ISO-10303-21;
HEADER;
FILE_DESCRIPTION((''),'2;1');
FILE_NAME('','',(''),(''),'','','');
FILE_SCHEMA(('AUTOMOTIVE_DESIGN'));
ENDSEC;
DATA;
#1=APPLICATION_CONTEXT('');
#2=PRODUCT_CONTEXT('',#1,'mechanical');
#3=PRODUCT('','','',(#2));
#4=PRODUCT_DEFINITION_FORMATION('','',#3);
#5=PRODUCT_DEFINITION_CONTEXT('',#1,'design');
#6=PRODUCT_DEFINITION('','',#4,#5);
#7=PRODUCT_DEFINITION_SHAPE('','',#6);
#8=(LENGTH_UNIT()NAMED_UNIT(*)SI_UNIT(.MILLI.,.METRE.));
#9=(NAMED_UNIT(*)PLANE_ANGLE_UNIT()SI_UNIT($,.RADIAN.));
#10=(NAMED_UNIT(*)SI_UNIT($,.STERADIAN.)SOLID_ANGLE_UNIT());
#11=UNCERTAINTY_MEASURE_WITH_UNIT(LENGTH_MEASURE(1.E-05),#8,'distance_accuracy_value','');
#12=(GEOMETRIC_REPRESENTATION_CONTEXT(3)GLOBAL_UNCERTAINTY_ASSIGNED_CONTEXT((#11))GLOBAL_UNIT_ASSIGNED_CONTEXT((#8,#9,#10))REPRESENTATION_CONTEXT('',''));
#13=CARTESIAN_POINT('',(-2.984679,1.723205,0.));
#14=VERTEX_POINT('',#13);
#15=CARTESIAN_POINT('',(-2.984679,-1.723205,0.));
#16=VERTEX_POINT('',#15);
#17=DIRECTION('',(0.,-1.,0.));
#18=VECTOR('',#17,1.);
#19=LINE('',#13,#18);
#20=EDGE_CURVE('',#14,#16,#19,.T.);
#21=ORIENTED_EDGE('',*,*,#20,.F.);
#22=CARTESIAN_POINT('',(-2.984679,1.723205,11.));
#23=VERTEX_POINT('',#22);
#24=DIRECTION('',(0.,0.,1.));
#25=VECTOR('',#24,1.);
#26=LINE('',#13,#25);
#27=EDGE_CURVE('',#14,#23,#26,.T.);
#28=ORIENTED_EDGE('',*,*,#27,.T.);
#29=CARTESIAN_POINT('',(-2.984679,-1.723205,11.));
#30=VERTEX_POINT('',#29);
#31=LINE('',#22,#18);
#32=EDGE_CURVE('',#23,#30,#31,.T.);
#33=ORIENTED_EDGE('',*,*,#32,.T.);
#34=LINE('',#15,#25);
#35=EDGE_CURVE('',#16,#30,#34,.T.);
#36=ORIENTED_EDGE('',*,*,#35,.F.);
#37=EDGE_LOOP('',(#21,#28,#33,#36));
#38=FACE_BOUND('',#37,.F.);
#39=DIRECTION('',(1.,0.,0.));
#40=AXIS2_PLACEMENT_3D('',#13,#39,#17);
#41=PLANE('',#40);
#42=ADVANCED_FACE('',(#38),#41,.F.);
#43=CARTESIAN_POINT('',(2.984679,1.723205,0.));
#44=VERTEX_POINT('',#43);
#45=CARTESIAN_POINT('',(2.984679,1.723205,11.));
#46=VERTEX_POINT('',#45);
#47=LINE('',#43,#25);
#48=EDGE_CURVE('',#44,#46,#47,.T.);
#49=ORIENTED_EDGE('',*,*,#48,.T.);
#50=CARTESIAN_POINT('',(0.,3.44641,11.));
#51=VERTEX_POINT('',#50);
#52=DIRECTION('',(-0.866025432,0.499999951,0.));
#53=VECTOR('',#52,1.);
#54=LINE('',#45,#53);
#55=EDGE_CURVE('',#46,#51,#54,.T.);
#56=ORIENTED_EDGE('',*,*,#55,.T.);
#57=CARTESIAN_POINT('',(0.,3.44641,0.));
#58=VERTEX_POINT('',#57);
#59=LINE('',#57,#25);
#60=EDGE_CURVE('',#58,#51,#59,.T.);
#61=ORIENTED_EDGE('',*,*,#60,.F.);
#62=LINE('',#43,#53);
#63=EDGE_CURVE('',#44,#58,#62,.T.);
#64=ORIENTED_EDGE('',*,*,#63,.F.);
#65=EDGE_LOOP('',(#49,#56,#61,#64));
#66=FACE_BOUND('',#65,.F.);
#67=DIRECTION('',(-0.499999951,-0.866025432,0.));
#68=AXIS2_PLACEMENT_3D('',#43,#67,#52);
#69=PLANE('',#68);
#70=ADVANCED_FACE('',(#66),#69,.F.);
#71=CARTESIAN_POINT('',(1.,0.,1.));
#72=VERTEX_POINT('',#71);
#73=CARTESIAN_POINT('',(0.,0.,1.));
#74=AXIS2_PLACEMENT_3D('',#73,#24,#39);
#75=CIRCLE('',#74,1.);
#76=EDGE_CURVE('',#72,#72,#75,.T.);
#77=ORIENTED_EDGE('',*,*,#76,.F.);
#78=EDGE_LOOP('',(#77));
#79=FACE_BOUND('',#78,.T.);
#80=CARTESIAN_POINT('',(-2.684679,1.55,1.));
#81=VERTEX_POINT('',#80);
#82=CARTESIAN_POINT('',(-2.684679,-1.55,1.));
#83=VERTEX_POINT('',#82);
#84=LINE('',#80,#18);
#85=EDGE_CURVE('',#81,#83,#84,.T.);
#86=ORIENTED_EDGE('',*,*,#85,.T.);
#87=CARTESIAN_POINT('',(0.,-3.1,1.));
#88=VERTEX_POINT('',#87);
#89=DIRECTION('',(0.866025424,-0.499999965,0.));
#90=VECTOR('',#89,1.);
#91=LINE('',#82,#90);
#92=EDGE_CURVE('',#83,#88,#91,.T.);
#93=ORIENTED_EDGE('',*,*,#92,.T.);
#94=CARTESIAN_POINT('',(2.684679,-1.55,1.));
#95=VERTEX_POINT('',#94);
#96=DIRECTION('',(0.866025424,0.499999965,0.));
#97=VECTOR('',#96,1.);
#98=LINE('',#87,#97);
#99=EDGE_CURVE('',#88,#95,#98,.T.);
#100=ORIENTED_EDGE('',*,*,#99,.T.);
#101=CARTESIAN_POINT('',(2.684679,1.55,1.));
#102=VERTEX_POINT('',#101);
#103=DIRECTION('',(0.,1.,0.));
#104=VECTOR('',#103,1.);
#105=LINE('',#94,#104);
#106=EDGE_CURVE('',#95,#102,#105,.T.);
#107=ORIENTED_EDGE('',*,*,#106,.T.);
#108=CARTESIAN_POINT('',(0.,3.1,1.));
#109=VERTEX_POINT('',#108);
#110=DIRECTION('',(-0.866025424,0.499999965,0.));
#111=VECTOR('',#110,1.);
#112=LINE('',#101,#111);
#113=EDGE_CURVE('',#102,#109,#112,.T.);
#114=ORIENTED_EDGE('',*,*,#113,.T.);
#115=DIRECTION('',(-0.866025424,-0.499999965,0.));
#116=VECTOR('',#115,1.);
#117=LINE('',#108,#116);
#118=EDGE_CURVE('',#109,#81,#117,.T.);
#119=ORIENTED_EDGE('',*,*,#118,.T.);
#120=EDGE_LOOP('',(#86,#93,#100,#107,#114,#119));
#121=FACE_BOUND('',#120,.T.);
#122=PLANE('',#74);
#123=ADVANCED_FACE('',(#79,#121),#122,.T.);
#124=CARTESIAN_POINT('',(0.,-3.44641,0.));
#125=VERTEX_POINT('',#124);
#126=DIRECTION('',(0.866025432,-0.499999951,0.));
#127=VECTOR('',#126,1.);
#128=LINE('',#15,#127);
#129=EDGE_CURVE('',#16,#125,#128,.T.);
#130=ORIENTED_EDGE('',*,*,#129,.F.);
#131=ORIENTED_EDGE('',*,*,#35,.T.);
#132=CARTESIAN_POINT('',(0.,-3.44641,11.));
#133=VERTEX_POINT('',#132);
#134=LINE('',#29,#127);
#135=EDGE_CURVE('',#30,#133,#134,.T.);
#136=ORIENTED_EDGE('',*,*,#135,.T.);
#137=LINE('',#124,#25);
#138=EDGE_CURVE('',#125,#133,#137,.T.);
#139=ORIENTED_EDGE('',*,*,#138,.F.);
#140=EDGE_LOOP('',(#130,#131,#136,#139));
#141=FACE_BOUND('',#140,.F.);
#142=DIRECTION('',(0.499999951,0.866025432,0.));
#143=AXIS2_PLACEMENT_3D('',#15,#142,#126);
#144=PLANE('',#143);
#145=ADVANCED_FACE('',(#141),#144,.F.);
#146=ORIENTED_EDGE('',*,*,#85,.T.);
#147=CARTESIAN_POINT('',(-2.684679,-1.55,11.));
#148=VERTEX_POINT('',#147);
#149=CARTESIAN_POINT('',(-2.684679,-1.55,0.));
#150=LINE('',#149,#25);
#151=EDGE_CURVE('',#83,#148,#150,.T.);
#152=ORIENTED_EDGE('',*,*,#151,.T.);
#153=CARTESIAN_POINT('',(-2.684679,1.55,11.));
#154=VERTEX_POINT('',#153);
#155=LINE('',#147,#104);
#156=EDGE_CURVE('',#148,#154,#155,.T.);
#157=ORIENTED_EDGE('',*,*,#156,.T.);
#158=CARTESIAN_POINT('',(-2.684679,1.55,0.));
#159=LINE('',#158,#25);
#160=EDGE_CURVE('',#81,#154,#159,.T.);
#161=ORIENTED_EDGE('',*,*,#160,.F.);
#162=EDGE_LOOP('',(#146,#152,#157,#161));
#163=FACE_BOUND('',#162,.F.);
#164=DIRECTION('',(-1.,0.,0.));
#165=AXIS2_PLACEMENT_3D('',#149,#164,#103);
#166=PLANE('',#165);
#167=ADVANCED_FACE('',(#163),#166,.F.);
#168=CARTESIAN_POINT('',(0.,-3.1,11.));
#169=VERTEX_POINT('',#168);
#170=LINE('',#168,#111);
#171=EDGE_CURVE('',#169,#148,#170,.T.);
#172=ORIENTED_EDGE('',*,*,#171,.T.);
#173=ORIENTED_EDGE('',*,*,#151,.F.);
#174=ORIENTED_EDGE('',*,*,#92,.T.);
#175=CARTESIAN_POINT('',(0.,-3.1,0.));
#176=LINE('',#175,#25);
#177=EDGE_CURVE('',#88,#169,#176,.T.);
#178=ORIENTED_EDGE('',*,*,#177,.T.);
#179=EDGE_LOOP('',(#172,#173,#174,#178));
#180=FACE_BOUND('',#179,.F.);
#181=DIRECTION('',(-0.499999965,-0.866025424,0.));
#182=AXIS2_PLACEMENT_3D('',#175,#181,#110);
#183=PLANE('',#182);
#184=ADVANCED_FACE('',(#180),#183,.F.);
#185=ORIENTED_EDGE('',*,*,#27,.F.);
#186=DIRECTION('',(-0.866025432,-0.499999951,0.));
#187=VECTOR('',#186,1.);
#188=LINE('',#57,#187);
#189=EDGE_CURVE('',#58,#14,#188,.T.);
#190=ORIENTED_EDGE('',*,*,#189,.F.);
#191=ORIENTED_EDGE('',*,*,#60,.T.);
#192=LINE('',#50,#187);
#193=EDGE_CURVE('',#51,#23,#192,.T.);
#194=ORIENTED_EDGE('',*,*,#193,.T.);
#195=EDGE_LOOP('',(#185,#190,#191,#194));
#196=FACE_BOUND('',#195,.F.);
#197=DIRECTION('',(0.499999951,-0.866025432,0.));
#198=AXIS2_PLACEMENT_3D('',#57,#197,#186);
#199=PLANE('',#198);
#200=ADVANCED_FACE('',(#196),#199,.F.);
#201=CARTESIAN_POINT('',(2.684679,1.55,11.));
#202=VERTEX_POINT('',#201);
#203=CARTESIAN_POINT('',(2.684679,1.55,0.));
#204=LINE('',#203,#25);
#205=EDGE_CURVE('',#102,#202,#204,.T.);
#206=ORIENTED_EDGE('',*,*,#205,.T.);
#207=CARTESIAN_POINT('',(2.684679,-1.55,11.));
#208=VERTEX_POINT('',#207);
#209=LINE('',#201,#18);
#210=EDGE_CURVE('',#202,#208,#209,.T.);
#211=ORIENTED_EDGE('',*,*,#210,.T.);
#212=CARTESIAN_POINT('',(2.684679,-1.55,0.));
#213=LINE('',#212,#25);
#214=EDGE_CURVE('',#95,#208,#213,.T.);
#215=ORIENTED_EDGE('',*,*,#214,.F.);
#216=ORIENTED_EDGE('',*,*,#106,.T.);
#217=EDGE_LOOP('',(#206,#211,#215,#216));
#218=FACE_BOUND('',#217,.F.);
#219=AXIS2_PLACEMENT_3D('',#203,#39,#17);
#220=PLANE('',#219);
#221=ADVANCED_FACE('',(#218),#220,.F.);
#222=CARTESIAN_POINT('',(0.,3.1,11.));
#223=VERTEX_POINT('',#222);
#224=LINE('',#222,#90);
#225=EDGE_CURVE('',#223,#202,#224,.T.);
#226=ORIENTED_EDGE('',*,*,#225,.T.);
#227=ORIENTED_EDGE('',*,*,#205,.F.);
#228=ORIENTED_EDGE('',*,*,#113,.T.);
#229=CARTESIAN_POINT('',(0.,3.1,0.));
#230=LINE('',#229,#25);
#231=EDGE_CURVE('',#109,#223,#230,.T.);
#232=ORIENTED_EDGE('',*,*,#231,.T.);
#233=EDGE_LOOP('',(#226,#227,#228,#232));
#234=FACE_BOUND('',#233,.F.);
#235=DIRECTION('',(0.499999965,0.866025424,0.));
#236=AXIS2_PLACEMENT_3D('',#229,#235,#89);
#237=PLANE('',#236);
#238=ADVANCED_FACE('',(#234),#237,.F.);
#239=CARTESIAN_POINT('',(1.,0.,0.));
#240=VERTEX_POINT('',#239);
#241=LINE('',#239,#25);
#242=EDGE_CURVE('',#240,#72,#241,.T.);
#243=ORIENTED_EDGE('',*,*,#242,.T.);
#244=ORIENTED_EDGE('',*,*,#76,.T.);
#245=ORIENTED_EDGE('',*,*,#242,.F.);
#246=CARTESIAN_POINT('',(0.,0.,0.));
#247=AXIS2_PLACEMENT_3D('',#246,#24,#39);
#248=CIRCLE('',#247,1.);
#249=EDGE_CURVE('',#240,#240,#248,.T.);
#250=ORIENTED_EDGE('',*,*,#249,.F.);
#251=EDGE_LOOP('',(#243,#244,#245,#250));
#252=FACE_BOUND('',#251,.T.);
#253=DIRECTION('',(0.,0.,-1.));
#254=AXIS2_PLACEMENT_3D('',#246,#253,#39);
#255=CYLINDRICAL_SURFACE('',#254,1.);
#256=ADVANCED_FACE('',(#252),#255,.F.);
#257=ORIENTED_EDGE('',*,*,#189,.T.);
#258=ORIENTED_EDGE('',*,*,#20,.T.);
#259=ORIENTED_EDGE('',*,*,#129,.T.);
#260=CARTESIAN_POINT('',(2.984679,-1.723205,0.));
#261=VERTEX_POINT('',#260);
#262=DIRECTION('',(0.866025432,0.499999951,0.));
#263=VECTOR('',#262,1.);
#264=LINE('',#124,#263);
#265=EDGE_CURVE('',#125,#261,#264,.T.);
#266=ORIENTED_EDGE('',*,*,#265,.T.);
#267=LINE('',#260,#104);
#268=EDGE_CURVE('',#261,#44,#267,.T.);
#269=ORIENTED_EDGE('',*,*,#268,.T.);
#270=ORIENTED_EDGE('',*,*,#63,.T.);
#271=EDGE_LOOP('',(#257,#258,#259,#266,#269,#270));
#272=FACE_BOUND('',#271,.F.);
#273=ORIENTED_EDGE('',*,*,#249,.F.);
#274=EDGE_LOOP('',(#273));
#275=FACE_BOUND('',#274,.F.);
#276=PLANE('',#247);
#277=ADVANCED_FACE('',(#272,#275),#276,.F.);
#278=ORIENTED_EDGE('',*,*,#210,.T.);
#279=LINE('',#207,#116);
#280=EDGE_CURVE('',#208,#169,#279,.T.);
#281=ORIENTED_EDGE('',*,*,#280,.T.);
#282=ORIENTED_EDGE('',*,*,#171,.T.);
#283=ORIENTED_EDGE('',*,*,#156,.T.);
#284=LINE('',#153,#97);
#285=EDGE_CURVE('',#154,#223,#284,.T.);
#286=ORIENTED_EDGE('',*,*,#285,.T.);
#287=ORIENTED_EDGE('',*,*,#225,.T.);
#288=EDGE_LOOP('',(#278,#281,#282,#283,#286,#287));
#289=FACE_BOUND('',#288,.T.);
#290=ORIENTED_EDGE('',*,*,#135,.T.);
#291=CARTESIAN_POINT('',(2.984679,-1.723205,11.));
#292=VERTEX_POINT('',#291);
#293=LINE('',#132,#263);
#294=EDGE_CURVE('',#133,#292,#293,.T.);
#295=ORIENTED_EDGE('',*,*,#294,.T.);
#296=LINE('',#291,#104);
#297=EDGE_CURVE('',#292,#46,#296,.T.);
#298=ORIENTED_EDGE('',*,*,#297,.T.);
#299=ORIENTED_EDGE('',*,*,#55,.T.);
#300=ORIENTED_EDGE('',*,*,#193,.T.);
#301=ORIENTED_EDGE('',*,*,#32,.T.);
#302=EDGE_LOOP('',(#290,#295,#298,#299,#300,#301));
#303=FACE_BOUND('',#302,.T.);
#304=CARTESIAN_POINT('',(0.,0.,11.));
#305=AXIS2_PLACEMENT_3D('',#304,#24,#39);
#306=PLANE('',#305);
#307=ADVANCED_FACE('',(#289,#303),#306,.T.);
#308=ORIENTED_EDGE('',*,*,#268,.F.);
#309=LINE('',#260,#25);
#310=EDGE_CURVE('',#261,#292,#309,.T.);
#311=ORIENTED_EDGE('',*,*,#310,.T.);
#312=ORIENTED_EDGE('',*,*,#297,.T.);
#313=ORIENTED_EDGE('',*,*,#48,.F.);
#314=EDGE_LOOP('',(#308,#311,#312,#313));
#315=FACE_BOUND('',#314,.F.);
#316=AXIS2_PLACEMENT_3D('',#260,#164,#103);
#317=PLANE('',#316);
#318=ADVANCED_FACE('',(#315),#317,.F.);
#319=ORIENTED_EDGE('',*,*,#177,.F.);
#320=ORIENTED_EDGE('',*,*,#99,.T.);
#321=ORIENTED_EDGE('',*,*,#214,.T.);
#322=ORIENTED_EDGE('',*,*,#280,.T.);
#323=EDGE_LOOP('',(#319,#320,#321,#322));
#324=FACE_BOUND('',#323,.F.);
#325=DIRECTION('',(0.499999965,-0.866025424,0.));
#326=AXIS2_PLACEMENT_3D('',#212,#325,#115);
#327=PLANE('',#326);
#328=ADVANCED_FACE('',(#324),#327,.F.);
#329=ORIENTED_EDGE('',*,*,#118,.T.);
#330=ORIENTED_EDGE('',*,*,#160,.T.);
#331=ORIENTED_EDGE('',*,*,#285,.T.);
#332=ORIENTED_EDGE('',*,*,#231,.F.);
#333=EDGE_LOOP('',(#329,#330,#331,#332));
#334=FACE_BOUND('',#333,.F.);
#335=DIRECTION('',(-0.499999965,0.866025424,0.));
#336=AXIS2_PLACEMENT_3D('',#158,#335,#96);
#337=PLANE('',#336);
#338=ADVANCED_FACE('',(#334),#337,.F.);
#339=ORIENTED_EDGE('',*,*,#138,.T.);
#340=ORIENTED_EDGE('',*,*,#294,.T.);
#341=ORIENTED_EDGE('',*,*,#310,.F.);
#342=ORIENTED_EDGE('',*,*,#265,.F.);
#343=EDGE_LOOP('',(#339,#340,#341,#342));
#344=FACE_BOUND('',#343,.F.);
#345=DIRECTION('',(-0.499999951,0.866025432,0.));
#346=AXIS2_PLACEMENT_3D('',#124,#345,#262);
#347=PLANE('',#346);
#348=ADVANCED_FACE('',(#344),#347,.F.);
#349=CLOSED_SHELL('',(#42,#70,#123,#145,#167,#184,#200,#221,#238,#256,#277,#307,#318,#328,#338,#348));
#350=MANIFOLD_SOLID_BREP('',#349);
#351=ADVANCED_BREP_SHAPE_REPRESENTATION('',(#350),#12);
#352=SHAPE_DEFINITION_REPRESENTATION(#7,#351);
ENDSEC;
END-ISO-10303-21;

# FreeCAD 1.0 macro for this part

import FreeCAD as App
import Part
import Sketcher
from FreeCAD import Vector
Q = App.Units.Quantity


def add_polygon(sketch, points):
    """Adds a closed chain of lines whose ends are joined by coincident constraints."""
    first, n = sketch.GeometryCount, len(points)
    for a, b in zip(points, points[1:] + points[:1]):
        sketch.addGeometry(Part.LineSegment(App.Vector(*a, 0), App.Vector(*b, 0)), False)
    for i in range(n):
        sketch.addConstraint(Sketcher.Constraint("Coincident", first + i, 2, first + (i + 1) % n, 1))

doc = App.newDocument("Part")
body = doc.addObject("PartDesign::Body", "Body")

# Sketch on XY plane
sketch1 = body.newObject("Sketcher::SketchObject", "Sketch")
sketch1.AttachmentSupport = (doc.getObject("XY_Plane"), [""])
sketch1.MapMode = "FlatFace"
add_polygon(sketch1, [(-3, 1.7), (-3, -1.7), (0, -3.4), (3, -1.7), (3, 1.7), (0, 3.4)])  # lines 0-5
add_polygon(sketch1, [(-2.7, 1.6), (0, 3.1), (2.7, 1.6), (2.7, -1.6), (0, -3.1), (-2.7, -1.6)])  # lines 6-11
sketch1.addConstraint([
    Sketcher.Constraint("Vertical", 0),
    Sketcher.Constraint("Vertical", 3),
    Sketcher.Constraint("Vertical", 8),
    Sketcher.Constraint("Vertical", 11),
    Sketcher.Constraint("Symmetric", 0, 2, 3, 2, -1, 1),
    Sketcher.Constraint("Symmetric", 1, 2, 4, 2, -1, 1),
    Sketcher.Constraint("Symmetric", 6, 2, 9, 2, -1, 1),
    Sketcher.Constraint("Symmetric", 7, 2, 10, 2, -1, 1),
    Sketcher.Constraint("PointOnObject", 1, 2, -2),
    Sketcher.Constraint("PointOnObject", 6, 2, -2),
    Sketcher.Constraint("Parallel", 2, 5),
    Sketcher.Constraint("Parallel", 5, 6),
    Sketcher.Constraint("Parallel", 4, 7),
    Sketcher.Constraint("Parallel", 6, 9),
    Sketcher.Constraint("Horizontal", 0, 2, 2, 2),
    Sketcher.Constraint("Angle", 1, Q("-29.999997 deg")),
    Sketcher.Constraint("DistanceY", 8, 2, 8, 1, Q("3.1 mm")),
    Sketcher.Constraint("Distance", 6, Q("3.1 mm")),
    Sketcher.Constraint("DistanceX", 7, 2, 3, 2, Q("0.3 mm")),
    Sketcher.Constraint("DistanceY", 0, 2, 0, 1, Q("3.44641 mm")),
])
pad1 = body.newObject("PartDesign::Pad", "Pad")
pad1.Profile = sketch1
pad1.Length = 11

# Sketch on XY plane
sketch2 = body.newObject("Sketcher::SketchObject", "Sketch001")
sketch2.AttachmentSupport = (doc.getObject("XY_Plane"), [""])
sketch2.MapMode = "FlatFace"
add_polygon(sketch2, [(2.7, -1.6), (2.7, 1.6), (0, 3.1), (-2.7, 1.6), (-2.7, -1.6), (0, -3.1)])  # lines 0-5
sketch2.addGeometry(Part.Circle(Vector(0, 0, 0), Vector(0, 0, 1), 1), False)  # 6
sketch2.addConstraint([
    Sketcher.Constraint("Vertical", 0),
    Sketcher.Constraint("Vertical", 3),
    Sketcher.Constraint("Coincident", 6, 3, -1, 1),
    Sketcher.Constraint("Symmetric", 0, 2, 3, 2, -1, 1),
    Sketcher.Constraint("Symmetric", 1, 2, 4, 2, -1, 1),
    Sketcher.Constraint("PointOnObject", 1, 2, -2),
    Sketcher.Constraint("Parallel", 2, 5),
    Sketcher.Constraint("Horizontal", 0, 2, 2, 2),
    Sketcher.Constraint("Diameter", 6, Q("2 mm")),
    Sketcher.Constraint("Angle", 1, Q("150.000002 deg")),
    Sketcher.Constraint("DistanceY", 0, 1, 0, 2, Q("3.1 mm")),
    Sketcher.Constraint("Distance", 1, Q("3.1 mm")),
])
pad2 = body.newObject("PartDesign::Pad", "Pad001")
pad2.Profile = sketch2
pad2.Length = 1

doc.recompute()
